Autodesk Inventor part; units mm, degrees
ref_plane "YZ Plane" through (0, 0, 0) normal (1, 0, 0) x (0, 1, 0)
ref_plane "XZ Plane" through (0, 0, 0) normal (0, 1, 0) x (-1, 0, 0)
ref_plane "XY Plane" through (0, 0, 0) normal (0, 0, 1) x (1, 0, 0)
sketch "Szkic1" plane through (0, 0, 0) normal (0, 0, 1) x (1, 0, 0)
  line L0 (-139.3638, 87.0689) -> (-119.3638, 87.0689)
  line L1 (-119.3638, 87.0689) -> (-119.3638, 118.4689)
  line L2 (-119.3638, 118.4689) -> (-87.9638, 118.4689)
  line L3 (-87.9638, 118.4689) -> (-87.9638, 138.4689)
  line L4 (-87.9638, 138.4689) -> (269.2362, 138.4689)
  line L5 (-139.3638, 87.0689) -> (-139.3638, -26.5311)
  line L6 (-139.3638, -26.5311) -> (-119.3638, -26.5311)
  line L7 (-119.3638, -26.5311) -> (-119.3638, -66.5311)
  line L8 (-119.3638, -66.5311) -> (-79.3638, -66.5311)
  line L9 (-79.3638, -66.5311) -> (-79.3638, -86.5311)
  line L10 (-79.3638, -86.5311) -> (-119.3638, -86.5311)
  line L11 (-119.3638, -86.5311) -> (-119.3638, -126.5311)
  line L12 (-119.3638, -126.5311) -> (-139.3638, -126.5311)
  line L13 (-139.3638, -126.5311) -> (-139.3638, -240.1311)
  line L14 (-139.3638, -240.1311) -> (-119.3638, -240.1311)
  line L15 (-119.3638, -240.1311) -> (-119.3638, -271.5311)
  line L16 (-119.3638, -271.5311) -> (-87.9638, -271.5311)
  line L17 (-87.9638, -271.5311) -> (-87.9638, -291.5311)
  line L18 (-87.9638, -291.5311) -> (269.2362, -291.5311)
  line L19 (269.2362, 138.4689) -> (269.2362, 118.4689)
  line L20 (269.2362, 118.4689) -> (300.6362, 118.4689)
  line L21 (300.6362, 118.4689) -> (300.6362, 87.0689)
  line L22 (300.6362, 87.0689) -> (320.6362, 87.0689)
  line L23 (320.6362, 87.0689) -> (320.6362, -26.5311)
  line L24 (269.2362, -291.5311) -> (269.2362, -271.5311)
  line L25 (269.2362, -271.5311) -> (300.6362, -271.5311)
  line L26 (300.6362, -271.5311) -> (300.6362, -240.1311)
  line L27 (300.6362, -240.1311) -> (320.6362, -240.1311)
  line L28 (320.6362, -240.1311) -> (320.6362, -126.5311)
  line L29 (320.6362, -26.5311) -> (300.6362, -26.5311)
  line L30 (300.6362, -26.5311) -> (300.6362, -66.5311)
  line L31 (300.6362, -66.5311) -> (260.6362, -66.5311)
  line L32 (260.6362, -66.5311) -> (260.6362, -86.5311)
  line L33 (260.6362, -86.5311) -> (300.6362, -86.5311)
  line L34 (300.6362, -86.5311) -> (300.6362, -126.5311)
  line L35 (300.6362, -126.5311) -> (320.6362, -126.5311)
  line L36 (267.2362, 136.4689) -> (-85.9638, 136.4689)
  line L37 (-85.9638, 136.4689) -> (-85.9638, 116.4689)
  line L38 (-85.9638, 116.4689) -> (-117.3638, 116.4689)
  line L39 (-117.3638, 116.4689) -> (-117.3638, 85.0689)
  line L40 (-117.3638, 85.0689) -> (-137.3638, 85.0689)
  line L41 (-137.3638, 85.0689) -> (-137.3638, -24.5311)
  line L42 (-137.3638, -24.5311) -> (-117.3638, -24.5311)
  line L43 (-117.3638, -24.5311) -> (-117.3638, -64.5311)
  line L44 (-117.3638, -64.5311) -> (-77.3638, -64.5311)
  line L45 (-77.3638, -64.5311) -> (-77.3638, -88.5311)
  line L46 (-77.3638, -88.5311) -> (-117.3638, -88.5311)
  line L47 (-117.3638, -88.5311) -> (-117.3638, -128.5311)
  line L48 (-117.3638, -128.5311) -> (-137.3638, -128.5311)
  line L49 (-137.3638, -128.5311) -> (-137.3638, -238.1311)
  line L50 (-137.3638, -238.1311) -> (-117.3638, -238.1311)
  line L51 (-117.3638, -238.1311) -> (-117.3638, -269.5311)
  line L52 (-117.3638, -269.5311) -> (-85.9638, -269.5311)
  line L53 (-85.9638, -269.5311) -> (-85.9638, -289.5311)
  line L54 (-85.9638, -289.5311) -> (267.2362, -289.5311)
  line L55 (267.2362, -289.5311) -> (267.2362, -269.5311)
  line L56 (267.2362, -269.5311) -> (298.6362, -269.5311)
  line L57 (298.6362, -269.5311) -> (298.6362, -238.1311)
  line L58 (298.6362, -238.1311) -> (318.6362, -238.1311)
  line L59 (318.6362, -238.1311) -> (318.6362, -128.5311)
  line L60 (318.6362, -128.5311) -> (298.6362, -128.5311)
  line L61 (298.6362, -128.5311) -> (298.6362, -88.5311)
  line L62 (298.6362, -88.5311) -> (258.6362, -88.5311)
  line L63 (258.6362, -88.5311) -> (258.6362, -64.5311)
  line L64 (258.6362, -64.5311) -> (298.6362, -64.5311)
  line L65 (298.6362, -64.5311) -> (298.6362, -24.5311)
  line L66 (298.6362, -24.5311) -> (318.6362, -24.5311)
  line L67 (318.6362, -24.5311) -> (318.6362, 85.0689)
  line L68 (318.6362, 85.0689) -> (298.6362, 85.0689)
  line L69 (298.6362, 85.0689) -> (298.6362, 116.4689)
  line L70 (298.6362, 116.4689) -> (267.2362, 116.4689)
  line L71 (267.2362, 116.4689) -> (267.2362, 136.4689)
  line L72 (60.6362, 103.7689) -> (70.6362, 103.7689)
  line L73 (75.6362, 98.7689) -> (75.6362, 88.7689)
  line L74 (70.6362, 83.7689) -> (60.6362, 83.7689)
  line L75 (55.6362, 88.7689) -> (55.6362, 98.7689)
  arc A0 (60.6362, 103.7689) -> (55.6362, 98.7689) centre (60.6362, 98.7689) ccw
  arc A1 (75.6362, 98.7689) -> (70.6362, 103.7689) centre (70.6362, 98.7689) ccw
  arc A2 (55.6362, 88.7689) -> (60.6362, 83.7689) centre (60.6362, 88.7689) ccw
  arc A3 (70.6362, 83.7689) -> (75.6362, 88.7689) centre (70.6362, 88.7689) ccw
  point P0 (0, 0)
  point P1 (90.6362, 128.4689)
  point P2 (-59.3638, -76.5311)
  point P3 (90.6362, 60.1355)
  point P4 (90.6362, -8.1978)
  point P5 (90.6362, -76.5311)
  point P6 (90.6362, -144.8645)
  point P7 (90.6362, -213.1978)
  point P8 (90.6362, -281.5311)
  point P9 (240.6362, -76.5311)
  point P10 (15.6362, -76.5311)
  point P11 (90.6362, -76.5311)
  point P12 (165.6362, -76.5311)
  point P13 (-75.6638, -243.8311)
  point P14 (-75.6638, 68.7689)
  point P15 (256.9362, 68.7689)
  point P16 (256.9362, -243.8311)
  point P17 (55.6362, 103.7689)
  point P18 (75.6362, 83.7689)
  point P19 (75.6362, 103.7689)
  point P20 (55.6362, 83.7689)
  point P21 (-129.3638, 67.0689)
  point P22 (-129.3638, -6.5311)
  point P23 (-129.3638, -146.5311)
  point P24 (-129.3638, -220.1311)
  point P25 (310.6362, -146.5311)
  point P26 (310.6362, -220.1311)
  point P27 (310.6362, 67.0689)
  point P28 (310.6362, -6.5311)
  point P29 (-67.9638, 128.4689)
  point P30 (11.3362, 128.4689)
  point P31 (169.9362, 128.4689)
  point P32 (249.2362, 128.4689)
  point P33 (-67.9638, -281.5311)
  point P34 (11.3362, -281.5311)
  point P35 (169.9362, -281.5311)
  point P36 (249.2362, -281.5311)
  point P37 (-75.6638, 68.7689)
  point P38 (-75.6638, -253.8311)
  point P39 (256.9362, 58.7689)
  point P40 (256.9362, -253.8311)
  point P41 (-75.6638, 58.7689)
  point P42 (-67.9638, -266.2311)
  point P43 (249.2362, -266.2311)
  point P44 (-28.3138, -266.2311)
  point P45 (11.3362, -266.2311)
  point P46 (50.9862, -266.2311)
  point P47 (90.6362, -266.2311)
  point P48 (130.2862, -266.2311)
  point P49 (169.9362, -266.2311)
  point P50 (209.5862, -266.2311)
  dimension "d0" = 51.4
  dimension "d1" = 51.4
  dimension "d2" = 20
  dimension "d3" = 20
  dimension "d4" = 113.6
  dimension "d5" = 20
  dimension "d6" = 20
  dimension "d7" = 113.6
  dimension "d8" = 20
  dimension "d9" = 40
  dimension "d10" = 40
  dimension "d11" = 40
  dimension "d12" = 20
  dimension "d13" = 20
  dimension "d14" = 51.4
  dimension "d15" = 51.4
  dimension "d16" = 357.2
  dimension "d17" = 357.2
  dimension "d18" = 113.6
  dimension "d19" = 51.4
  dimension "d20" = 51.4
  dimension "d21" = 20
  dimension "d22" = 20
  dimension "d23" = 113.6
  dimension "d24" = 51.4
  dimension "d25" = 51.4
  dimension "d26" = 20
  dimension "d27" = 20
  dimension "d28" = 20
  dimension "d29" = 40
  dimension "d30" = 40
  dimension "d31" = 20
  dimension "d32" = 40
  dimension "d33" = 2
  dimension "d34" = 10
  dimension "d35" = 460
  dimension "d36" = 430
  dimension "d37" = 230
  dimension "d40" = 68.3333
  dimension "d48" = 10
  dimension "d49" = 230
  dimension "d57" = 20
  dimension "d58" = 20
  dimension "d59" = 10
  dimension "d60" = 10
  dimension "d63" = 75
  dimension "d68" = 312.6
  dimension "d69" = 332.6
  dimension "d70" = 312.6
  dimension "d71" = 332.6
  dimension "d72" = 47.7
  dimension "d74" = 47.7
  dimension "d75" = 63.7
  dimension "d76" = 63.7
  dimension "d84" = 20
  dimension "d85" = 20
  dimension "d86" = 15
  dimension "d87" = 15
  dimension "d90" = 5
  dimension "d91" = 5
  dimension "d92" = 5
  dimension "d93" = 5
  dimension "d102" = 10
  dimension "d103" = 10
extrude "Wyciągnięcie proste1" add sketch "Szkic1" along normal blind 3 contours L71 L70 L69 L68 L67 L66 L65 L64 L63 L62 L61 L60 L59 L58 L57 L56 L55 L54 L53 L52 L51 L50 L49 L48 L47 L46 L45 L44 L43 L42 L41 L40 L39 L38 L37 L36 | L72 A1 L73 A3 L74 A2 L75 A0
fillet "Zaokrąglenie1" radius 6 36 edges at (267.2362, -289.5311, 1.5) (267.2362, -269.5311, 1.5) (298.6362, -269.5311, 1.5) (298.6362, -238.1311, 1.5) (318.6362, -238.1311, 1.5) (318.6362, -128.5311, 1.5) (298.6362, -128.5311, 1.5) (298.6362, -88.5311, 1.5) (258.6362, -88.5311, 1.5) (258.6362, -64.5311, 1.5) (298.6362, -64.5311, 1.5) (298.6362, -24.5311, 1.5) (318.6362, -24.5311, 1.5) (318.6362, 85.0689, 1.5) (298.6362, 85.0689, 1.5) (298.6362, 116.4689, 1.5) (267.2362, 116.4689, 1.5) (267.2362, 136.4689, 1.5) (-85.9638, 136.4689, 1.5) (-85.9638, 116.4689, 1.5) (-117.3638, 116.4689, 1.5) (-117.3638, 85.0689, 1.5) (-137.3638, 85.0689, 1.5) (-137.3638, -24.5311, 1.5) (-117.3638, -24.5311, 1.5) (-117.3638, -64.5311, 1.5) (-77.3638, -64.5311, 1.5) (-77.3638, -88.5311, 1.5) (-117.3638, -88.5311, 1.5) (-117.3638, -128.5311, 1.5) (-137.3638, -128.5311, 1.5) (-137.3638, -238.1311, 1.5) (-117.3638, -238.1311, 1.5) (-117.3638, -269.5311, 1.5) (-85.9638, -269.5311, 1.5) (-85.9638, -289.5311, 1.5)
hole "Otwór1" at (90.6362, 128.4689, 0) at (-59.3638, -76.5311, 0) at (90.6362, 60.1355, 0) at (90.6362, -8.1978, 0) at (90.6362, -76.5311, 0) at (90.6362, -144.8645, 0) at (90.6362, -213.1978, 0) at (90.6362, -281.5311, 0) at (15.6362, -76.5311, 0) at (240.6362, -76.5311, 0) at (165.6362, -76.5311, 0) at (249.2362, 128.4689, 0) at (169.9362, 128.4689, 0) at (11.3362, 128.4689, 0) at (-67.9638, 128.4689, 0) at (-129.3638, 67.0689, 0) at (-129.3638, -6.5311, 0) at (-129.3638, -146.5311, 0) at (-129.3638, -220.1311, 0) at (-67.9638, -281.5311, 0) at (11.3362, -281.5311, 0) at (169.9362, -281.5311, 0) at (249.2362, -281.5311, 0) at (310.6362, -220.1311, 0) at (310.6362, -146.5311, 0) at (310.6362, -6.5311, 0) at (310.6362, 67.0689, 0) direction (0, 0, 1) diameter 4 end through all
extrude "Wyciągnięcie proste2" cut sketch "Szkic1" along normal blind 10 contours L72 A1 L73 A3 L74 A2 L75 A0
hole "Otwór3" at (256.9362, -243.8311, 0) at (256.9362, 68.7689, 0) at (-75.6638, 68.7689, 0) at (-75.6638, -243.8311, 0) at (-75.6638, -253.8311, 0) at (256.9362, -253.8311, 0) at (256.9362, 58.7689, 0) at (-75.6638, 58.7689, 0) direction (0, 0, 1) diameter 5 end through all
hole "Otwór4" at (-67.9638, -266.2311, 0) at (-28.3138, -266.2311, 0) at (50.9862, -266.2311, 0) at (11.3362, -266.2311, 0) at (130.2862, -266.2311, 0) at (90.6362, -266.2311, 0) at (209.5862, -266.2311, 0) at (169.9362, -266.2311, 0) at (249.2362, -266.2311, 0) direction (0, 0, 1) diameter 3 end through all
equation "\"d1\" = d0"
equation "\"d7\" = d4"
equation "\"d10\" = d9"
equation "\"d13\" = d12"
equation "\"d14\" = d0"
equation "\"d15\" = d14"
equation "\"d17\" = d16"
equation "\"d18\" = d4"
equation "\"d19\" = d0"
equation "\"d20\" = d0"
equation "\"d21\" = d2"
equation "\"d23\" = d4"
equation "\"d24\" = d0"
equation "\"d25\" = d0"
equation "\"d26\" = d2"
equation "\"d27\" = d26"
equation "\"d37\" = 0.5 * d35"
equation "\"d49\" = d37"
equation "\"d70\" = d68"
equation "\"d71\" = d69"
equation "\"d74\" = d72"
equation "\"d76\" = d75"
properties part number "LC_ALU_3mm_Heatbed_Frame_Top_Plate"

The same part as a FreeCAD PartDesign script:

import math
import FreeCAD as App
import Part
import Sketcher
from FreeCAD import Vector
Q = App.Units.Quantity


def edges_at(feature, points):
    """Names of the edges that pass closest to the given points."""
    edges = feature.Shape.Edges
    near = lambda p: min(range(len(edges)), key=lambda i: edges[i].distToShape(Part.Vertex(*p))[0])
    return sorted({f"Edge{near(p) + 1}" for p in points})


def add_polygon(sketch, points):
    """Adds a closed chain of lines whose ends are joined by coincident constraints."""
    first, n = sketch.GeometryCount, len(points)
    for a, b in zip(points, points[1:] + points[:1]):
        sketch.addGeometry(Part.LineSegment(App.Vector(*a, 0), App.Vector(*b, 0)), False)
    for i in range(n):
        sketch.addConstraint(Sketcher.Constraint("Coincident", first + i, 2, first + (i + 1) % n, 1))

doc = App.newDocument("Part")
body = doc.addObject("PartDesign::Body", "Body")

sketch1 = body.newObject("Sketcher::SketchObject", "Sketch")
sketch1.AttachmentSupport = (doc.getObject("XY_Plane"), [""])
sketch1.MapMode = "FlatFace"
add_polygon(sketch1, [(267, 116), (267, 136), (-86, 136), (-86, 116), (-117, 116), (-117, 85), (-137, 85), (-137, -25), (-117, -25), (-117, -65), (-77, -65), (-77, -89), (-117, -89), (-117, -129), (-137, -129), (-137, -238), (-117, -238), (-117, -270), (-86, -270), (-86, -290), (267, -290), (267, -270), (299, -270), (299, -238), (319, -238), (319, -129), (299, -129), (299, -89), (259, -89), (259, -65), (299, -65), (299, -25), (319, -25), (319, 85), (299, 85), (299, 116)])
sketch1.addConstraint([
    Sketcher.Constraint("Vertical", 0),
    Sketcher.Constraint("Horizontal", 1),
    Sketcher.Constraint("Vertical", 2),
    Sketcher.Constraint("Horizontal", 3),
    Sketcher.Constraint("Vertical", 4),
    Sketcher.Constraint("Horizontal", 5),
    Sketcher.Constraint("Vertical", 6),
    Sketcher.Constraint("Horizontal", 7),
    Sketcher.Constraint("Vertical", 8),
    Sketcher.Constraint("Horizontal", 9),
    Sketcher.Constraint("Vertical", 10),
    Sketcher.Constraint("Horizontal", 11),
    Sketcher.Constraint("Vertical", 12),
    Sketcher.Constraint("Horizontal", 13),
    Sketcher.Constraint("Vertical", 14),
    Sketcher.Constraint("Horizontal", 15),
    Sketcher.Constraint("Vertical", 16),
    Sketcher.Constraint("Horizontal", 17),
    Sketcher.Constraint("Vertical", 18),
    Sketcher.Constraint("Horizontal", 19),
    Sketcher.Constraint("Vertical", 20),
    Sketcher.Constraint("Horizontal", 21),
    Sketcher.Constraint("Vertical", 22),
    Sketcher.Constraint("Horizontal", 23),
    Sketcher.Constraint("Vertical", 24),
    Sketcher.Constraint("Horizontal", 25),
    Sketcher.Constraint("Vertical", 26),
    Sketcher.Constraint("Horizontal", 27),
    Sketcher.Constraint("Vertical", 28),
    Sketcher.Constraint("Horizontal", 29),
    Sketcher.Constraint("Vertical", 30),
    Sketcher.Constraint("Horizontal", 31),
    Sketcher.Constraint("Vertical", 32),
    Sketcher.Constraint("Horizontal", 33),
    Sketcher.Constraint("Vertical", 34),
    Sketcher.Constraint("Horizontal", 35),
    Sketcher.Constraint("Horizontal", 17, 2, 20, 2),
    Sketcher.Constraint("Horizontal", 15, 2, 22, 2),
    Sketcher.Constraint("Horizontal", 13, 2, 24, 2),
    Sketcher.Constraint("Horizontal", 11, 2, 26, 2),
    Sketcher.Constraint("Horizontal", 9, 2, 28, 2),
    Sketcher.Constraint("Horizontal", 7, 2, 30, 2),
    Sketcher.Constraint("Horizontal", 5, 2, 32, 2),
    Sketcher.Constraint("Horizontal", 3, 2, 34, 2),
    Sketcher.Constraint("Vertical", 4, 2, 7, 2),
    Sketcher.Constraint("Vertical", 8, 2, 11, 2),
    Sketcher.Constraint("Vertical", 6, 2, 13, 2),
    Sketcher.Constraint("Vertical", 12, 2, 15, 2),
    Sketcher.Constraint("Vertical", 2, 2, 17, 2),
    Sketcher.Constraint("Vertical", 0, 2, 19, 2),
    Sketcher.Constraint("Vertical", 22, 2, 25, 2),
    Sketcher.Constraint("Vertical", 26, 2, 29, 2),
    Sketcher.Constraint("Vertical", 24, 2, 31, 2),
    Sketcher.Constraint("Vertical", 30, 2, 33, 2),
    Sketcher.Constraint("Equal", 17, 21),
    Sketcher.Constraint("Equal", 15, 23),
    Sketcher.Constraint("Equal", 11, 27),
    Sketcher.Constraint("Equal", 33, 0),
    Sketcher.Constraint("Equal", 35, 4),
    Sketcher.Constraint("Equal", 29, 8),
    Sketcher.Constraint("Equal", 8, 12),
    Sketcher.Constraint("Equal", 6, 14),
    Sketcher.Constraint("Equal", 4, 16),
    Sketcher.Constraint("Equal", 2, 18),
    Sketcher.Constraint("DistanceX", 5, 2, 5, 1, Q("20 mm")),
    Sketcher.Constraint("DistanceX", 9, 1, 9, 2, Q("40 mm")),
    Sketcher.Constraint("DistanceY", 4, 2, 1, 2, Q("51.4 mm")),
    Sketcher.Constraint("DistanceY", 10, 2, 10, 1, Q("24 mm")),
    Sketcher.Constraint("DistanceX", 1, 2, 1, 1, Q("353.2 mm")),
    Sketcher.Constraint("DistanceY", 6, 2, 6, 1, Q("109.6 mm")),
    Sketcher.Constraint("DistanceY", -1, 1, 0, 2, Q("136.469 mm")),
    Sketcher.Constraint("DistanceX", -1, 1, 0, 2, Q("267.2362 mm")),
])
pad1 = body.newObject("PartDesign::Pad", "Pad")
pad1.Profile = sketch1
pad1.Length = 3
doc.recompute()

fillet = body.newObject("PartDesign::Fillet", "Fillet")
fillet.Base = (pad1, edges_at(pad1, [
    (267.236, -289.531, 1.5),
    (267.236, -269.531, 1.5),
    (298.636, -269.531, 1.5),
    (298.636, -238.131, 1.5),
    (318.636, -238.131, 1.5),
    (318.636, -128.531, 1.5),
    (298.636, -128.531, 1.5),
    (298.636, -88.531, 1.5),
    (258.636, -88.531, 1.5),
    (258.636, -64.531, 1.5),
    (298.636, -64.531, 1.5),
    (298.636, -24.531, 1.5),
    (318.636, -24.531, 1.5),
    (318.636, 85.069, 1.5),
    (298.636, 85.069, 1.5),
    (298.636, 116.469, 1.5),
    (267.236, 116.469, 1.5),
    (267.236, 136.469, 1.5),
    (-85.964, 136.469, 1.5),
    (-85.964, 116.469, 1.5),
    (-117.364, 116.469, 1.5),
    (-117.364, 85.069, 1.5),
    (-137.364, 85.069, 1.5),
    (-137.364, -24.531, 1.5),
    (-117.364, -24.531, 1.5),
    (-117.364, -64.531, 1.5),
    (-77.364, -64.531, 1.5),
    (-77.364, -88.531, 1.5),
    (-117.364, -88.531, 1.5),
    (-117.364, -128.531, 1.5),
    (-137.364, -128.531, 1.5),
    (-137.364, -238.131, 1.5),
    (-117.364, -238.131, 1.5),
    (-117.364, -269.531, 1.5),
    (-85.964, -269.531, 1.5),
    (-85.964, -289.531, 1.5),
]))
fillet.Radius = 6

sketch2 = body.newObject("Sketcher::SketchObject", "Sketch001")
sketch2.AttachmentSupport = (doc.getObject("XY_Plane"), [""])
sketch2.MapMode = "FlatFace"
sketch2.addGeometry([
    Part.Circle(Vector(90.6, 128.5, 0), Vector(0, 0, 1), 2),
    Part.Circle(Vector(-59.4, -76.5, 0), Vector(0, 0, 1), 2),
    Part.Circle(Vector(90.6, 60.1, 0), Vector(0, 0, 1), 2),
    Part.Circle(Vector(90.6, -8.2, 0), Vector(0, 0, 1), 2),
    Part.Circle(Vector(90.6, -76.5, 0), Vector(0, 0, 1), 2),
    Part.Circle(Vector(90.6, -144.9, 0), Vector(0, 0, 1), 2),
    Part.Circle(Vector(90.6, -213.2, 0), Vector(0, 0, 1), 2),
    Part.Circle(Vector(90.6, -281.5, 0), Vector(0, 0, 1), 2),
    Part.Circle(Vector(15.6, -76.5, 0), Vector(0, 0, 1), 2),
    Part.Circle(Vector(240.6, -76.5, 0), Vector(0, 0, 1), 2),
    Part.Circle(Vector(165.6, -76.5, 0), Vector(0, 0, 1), 2),
    Part.Circle(Vector(249.2, 128.5, 0), Vector(0, 0, 1), 2),
    Part.Circle(Vector(169.9, 128.5, 0), Vector(0, 0, 1), 2),
    Part.Circle(Vector(11.3, 128.5, 0), Vector(0, 0, 1), 2),
    Part.Circle(Vector(-68, 128.5, 0), Vector(0, 0, 1), 2),
    Part.Circle(Vector(-129.4, 67.1, 0), Vector(0, 0, 1), 2),
    Part.Circle(Vector(-129.4, -6.5, 0), Vector(0, 0, 1), 2),
    Part.Circle(Vector(-129.4, -146.5, 0), Vector(0, 0, 1), 2),
    Part.Circle(Vector(-129.4, -220.1, 0), Vector(0, 0, 1), 2),
    Part.Circle(Vector(-68, -281.5, 0), Vector(0, 0, 1), 2),
    Part.Circle(Vector(11.3, -281.5, 0), Vector(0, 0, 1), 2),
    Part.Circle(Vector(169.9, -281.5, 0), Vector(0, 0, 1), 2),
    Part.Circle(Vector(249.2, -281.5, 0), Vector(0, 0, 1), 2),
    Part.Circle(Vector(310.6, -220.1, 0), Vector(0, 0, 1), 2),
    Part.Circle(Vector(310.6, -146.5, 0), Vector(0, 0, 1), 2),
    Part.Circle(Vector(310.6, -6.5, 0), Vector(0, 0, 1), 2),
    Part.Circle(Vector(310.6, 67.1, 0), Vector(0, 0, 1), 2),
], False)
sketch2.addConstraint([
    Sketcher.Constraint("Equal", 0, 1),
    Sketcher.Constraint("Equal", 1, 2),
    Sketcher.Constraint("Equal", 2, 3),
    Sketcher.Constraint("Equal", 3, 4),
    Sketcher.Constraint("Equal", 4, 5),
    Sketcher.Constraint("Equal", 5, 6),
    Sketcher.Constraint("Equal", 6, 7),
    Sketcher.Constraint("Equal", 7, 8),
    Sketcher.Constraint("Equal", 8, 9),
    Sketcher.Constraint("Equal", 9, 10),
    Sketcher.Constraint("Equal", 10, 11),
    Sketcher.Constraint("Equal", 11, 12),
    Sketcher.Constraint("Equal", 12, 13),
    Sketcher.Constraint("Equal", 13, 14),
    Sketcher.Constraint("Equal", 14, 15),
    Sketcher.Constraint("Equal", 15, 16),
    Sketcher.Constraint("Equal", 16, 17),
    Sketcher.Constraint("Equal", 17, 18),
    Sketcher.Constraint("Equal", 18, 19),
    Sketcher.Constraint("Equal", 19, 20),
    Sketcher.Constraint("Equal", 20, 21),
    Sketcher.Constraint("Equal", 21, 22),
    Sketcher.Constraint("Equal", 22, 23),
    Sketcher.Constraint("Equal", 23, 24),
    Sketcher.Constraint("Equal", 24, 25),
    Sketcher.Constraint("Equal", 25, 26),
    Sketcher.Constraint("Horizontal", 1, 3, 4, 3),
    Sketcher.Constraint("Horizontal", 4, 3, 8, 3),
    Sketcher.Constraint("Horizontal", 8, 3, 9, 3),
    Sketcher.Constraint("Horizontal", 9, 3, 10, 3),
    Sketcher.Constraint("Horizontal", 0, 3, 11, 3),
    Sketcher.Constraint("Horizontal", 11, 3, 12, 3),
    Sketcher.Constraint("Horizontal", 12, 3, 13, 3),
    Sketcher.Constraint("Horizontal", 13, 3, 14, 3),
    Sketcher.Constraint("Horizontal", 7, 3, 19, 3),
    Sketcher.Constraint("Horizontal", 19, 3, 20, 3),
    Sketcher.Constraint("Horizontal", 20, 3, 21, 3),
    Sketcher.Constraint("Horizontal", 21, 3, 22, 3),
    Sketcher.Constraint("Horizontal", 18, 3, 23, 3),
    Sketcher.Constraint("Horizontal", 17, 3, 24, 3),
    Sketcher.Constraint("Horizontal", 16, 3, 25, 3),
    Sketcher.Constraint("Horizontal", 15, 3, 26, 3),
    Sketcher.Constraint("Vertical", 0, 3, 2, 3),
    Sketcher.Constraint("Vertical", 2, 3, 3, 3),
    Sketcher.Constraint("Vertical", 3, 3, 4, 3),
    Sketcher.Constraint("Vertical", 4, 3, 5, 3),
    Sketcher.Constraint("Vertical", 5, 3, 6, 3),
    Sketcher.Constraint("Vertical", 6, 3, 7, 3),
    Sketcher.Constraint("Vertical", 15, 3, 16, 3),
    Sketcher.Constraint("Vertical", 16, 3, 17, 3),
    Sketcher.Constraint("Vertical", 17, 3, 18, 3),
    Sketcher.Constraint("Vertical", 14, 3, 19, 3),
    Sketcher.Constraint("Vertical", 13, 3, 20, 3),
    Sketcher.Constraint("Vertical", 12, 3, 21, 3),
    Sketcher.Constraint("Vertical", 11, 3, 22, 3),
    Sketcher.Constraint("Vertical", 23, 3, 24, 3),
    Sketcher.Constraint("Vertical", 24, 3, 25, 3),
    Sketcher.Constraint("Vertical", 25, 3, 26, 3),
    Sketcher.Constraint("Diameter", 0, Q("4 mm")),
    Sketcher.Constraint("DistanceX", 1, 3, 0, 3, Q("150 mm")),
    Sketcher.Constraint("DistanceY", 1, 3, 0, 3, Q("205 mm")),
    Sketcher.Constraint("DistanceY", 5, 3, 2, 3, Q("205 mm")),
    Sketcher.Constraint("DistanceY", 6, 3, 3, 3, Q("205 mm")),
    Sketcher.Constraint("DistanceY", 7, 3, 4, 3, Q("205 mm")),
    Sketcher.Constraint("DistanceX", 1, 3, 8, 3, Q("75 mm")),
    Sketcher.Constraint("DistanceX", 4, 3, 9, 3, Q("150 mm")),
    Sketcher.Constraint("DistanceX", 4, 3, 10, 3, Q("75 mm")),
    Sketcher.Constraint("DistanceX", 15, 3, 1, 3, Q("70 mm")),
    Sketcher.Constraint("DistanceY", 1, 3, 16, 3, Q("70 mm")),
    Sketcher.Constraint("DistanceY", 17, 3, 1, 3, Q("70 mm")),
    Sketcher.Constraint("DistanceX", 9, 3, 23, 3, Q("70 mm")),
    Sketcher.Constraint("DistanceX", 0, 3, 11, 3, Q("158.6 mm")),
    Sketcher.Constraint("DistanceX", 12, 3, 11, 3, Q("79.3 mm")),
    Sketcher.Constraint("DistanceX", 13, 3, 0, 3, Q("79.3 mm")),
    Sketcher.Constraint("DistanceX", 14, 3, 13, 3, Q("79.3 mm")),
    Sketcher.Constraint("DistanceY", 15, 3, 14, 3, Q("61.4 mm")),
    Sketcher.Constraint("DistanceY", 18, 3, 17, 3, Q("73.6 mm")),
    Sketcher.Constraint("DistanceY", -1, 1, 0, 3, Q("128.469 mm")),
    Sketcher.Constraint("DistanceX", -1, 1, 0, 3, Q("90.6362 mm")),
    Sketcher.Constraint("DistanceY", -1, 1, 2, 3, Q("60.1355 mm")),
    Sketcher.Constraint("DistanceY", 3, 3, -1, 1, Q("8.1978 mm")),
])
doc.recompute()
hole = body.newObject("PartDesign::Hole", "Hole")
hole.Profile = sketch2
hole.ThreadType = "None"
hole.Diameter = 4
hole.DepthType = "ThroughAll"
hole.Reversed = True

sketch3 = body.newObject("Sketcher::SketchObject", "Sketch002")
sketch3.AttachmentSupport = (doc.getObject("XY_Plane"), [""])
sketch3.MapMode = "FlatFace"
sketch3.addGeometry([
    Part.LineSegment(Vector(71, 104, 0), Vector(61, 104, 0)),
    Part.ArcOfCircle(Part.Circle(Vector(61, 99, 0), Vector(0, 0, 1), 5), math.radians(90), math.radians(180)),
    Part.LineSegment(Vector(56, 99, 0), Vector(56, 89, 0)),
    Part.ArcOfCircle(Part.Circle(Vector(61, 89, 0), Vector(0, 0, 1), 5), math.radians(180), math.radians(270)),
    Part.LineSegment(Vector(61, 84, 0), Vector(71, 84, 0)),
    Part.ArcOfCircle(Part.Circle(Vector(71, 89, 0), Vector(0, 0, 1), 5), math.radians(-90), math.radians(0)),
    Part.LineSegment(Vector(76, 89, 0), Vector(76, 99, 0)),
    Part.ArcOfCircle(Part.Circle(Vector(71, 99, 0), Vector(0, 0, 1), 5), math.radians(0), math.radians(90)),
], False)
sketch3.addConstraint([
    Sketcher.Constraint("Tangent", 0, 2, 1, 1),
    Sketcher.Constraint("Tangent", 1, 2, 2, 1),
    Sketcher.Constraint("Tangent", 2, 2, 3, 1),
    Sketcher.Constraint("Tangent", 3, 2, 4, 1),
    Sketcher.Constraint("Tangent", 4, 2, 5, 1),
    Sketcher.Constraint("Tangent", 5, 2, 6, 1),
    Sketcher.Constraint("Tangent", 6, 2, 7, 1),
    Sketcher.Constraint("Tangent", 7, 2, 0, 1),
    Sketcher.Constraint("Horizontal", 0),
    Sketcher.Constraint("Vertical", 2),
    Sketcher.Constraint("Horizontal", 4),
    Sketcher.Constraint("Vertical", 6),
    Sketcher.Constraint("Equal", 1, 3),
    Sketcher.Constraint("Equal", 3, 5),
    Sketcher.Constraint("Equal", 5, 7),
    Sketcher.Constraint("Equal", 4, 2),
    Sketcher.Constraint("Radius", 1, Q("5 mm")),
    Sketcher.Constraint("DistanceX", 0, 2, 0, 1, Q("10 mm")),
    Sketcher.Constraint("DistanceY", -1, 1, 1, 3, Q("98.769 mm")),
    Sketcher.Constraint("DistanceX", -1, 1, 1, 3, Q("60.6362 mm")),
])
pocket1 = body.newObject("PartDesign::Pocket", "Pocket")
pocket1.Profile = sketch3
pocket1.Length = 10
pocket1.Reversed = True

sketch4 = body.newObject("Sketcher::SketchObject", "Sketch003")
sketch4.AttachmentSupport = (doc.getObject("XY_Plane"), [""])
sketch4.MapMode = "FlatFace"
sketch4.addGeometry([
    Part.Circle(Vector(256.9, -243.8, 0), Vector(0, 0, 1), 2.5),
    Part.Circle(Vector(256.9, 68.8, 0), Vector(0, 0, 1), 2.5),
    Part.Circle(Vector(-75.7, 68.8, 0), Vector(0, 0, 1), 2.5),
    Part.Circle(Vector(-75.7, -243.8, 0), Vector(0, 0, 1), 2.5),
    Part.Circle(Vector(-75.7, -253.8, 0), Vector(0, 0, 1), 2.5),
    Part.Circle(Vector(256.9, -253.8, 0), Vector(0, 0, 1), 2.5),
    Part.Circle(Vector(256.9, 58.8, 0), Vector(0, 0, 1), 2.5),
    Part.Circle(Vector(-75.7, 58.8, 0), Vector(0, 0, 1), 2.5),
], False)
sketch4.addConstraint([
    Sketcher.Constraint("Equal", 0, 1),
    Sketcher.Constraint("Equal", 1, 2),
    Sketcher.Constraint("Equal", 2, 3),
    Sketcher.Constraint("Equal", 3, 4),
    Sketcher.Constraint("Equal", 4, 5),
    Sketcher.Constraint("Equal", 5, 6),
    Sketcher.Constraint("Equal", 6, 7),
    Sketcher.Constraint("Horizontal", 1, 3, 2, 3),
    Sketcher.Constraint("Horizontal", 0, 3, 3, 3),
    Sketcher.Constraint("Horizontal", 4, 3, 5, 3),
    Sketcher.Constraint("Horizontal", 6, 3, 7, 3),
    Sketcher.Constraint("Vertical", 0, 3, 1, 3),
    Sketcher.Constraint("Vertical", 2, 3, 3, 3),
    Sketcher.Constraint("Vertical", 3, 3, 4, 3),
    Sketcher.Constraint("Vertical", 1, 3, 5, 3),
    Sketcher.Constraint("Vertical", 5, 3, 6, 3),
    Sketcher.Constraint("Vertical", 4, 3, 7, 3),
    Sketcher.Constraint("Diameter", 0, Q("5 mm")),
    Sketcher.Constraint("DistanceY", 4, 3, 3, 3, Q("10 mm")),
    Sketcher.Constraint("DistanceY", 6, 3, 1, 3, Q("10 mm")),
    Sketcher.Constraint("DistanceY", 0, 3, 1, 3, Q("312.6 mm")),
    Sketcher.Constraint("DistanceX", 2, 3, 1, 3, Q("332.6 mm")),
    Sketcher.Constraint("DistanceY", 0, 3, -1, 1, Q("243.831 mm")),
    Sketcher.Constraint("DistanceX", -1, 1, 0, 3, Q("256.9362 mm")),
])
doc.recompute()
hole2 = body.newObject("PartDesign::Hole", "Hole001")
hole2.Profile = sketch4
hole2.ThreadType = "None"
hole2.Diameter = 5
hole2.DepthType = "ThroughAll"
hole2.Reversed = True

sketch5 = body.newObject("Sketcher::SketchObject", "Sketch004")
sketch5.AttachmentSupport = (doc.getObject("XY_Plane"), [""])
sketch5.MapMode = "FlatFace"
sketch5.addGeometry([
    Part.Circle(Vector(-68, -266.2, 0), Vector(0, 0, 1), 1.5),
    Part.Circle(Vector(-28.3, -266.2, 0), Vector(0, 0, 1), 1.5),
    Part.Circle(Vector(51, -266.2, 0), Vector(0, 0, 1), 1.5),
    Part.Circle(Vector(11.3, -266.2, 0), Vector(0, 0, 1), 1.5),
    Part.Circle(Vector(130.3, -266.2, 0), Vector(0, 0, 1), 1.5),
    Part.Circle(Vector(90.6, -266.2, 0), Vector(0, 0, 1), 1.5),
    Part.Circle(Vector(209.6, -266.2, 0), Vector(0, 0, 1), 1.5),
    Part.Circle(Vector(169.9, -266.2, 0), Vector(0, 0, 1), 1.5),
    Part.Circle(Vector(249.2, -266.2, 0), Vector(0, 0, 1), 1.5),
], False)
sketch5.addConstraint([
    Sketcher.Constraint("Equal", 0, 1),
    Sketcher.Constraint("Equal", 1, 2),
    Sketcher.Constraint("Equal", 2, 3),
    Sketcher.Constraint("Equal", 3, 4),
    Sketcher.Constraint("Equal", 4, 5),
    Sketcher.Constraint("Equal", 5, 6),
    Sketcher.Constraint("Equal", 6, 7),
    Sketcher.Constraint("Equal", 7, 8),
    Sketcher.Constraint("Horizontal", 0, 3, 1, 3),
    Sketcher.Constraint("Horizontal", 1, 3, 2, 3),
    Sketcher.Constraint("Horizontal", 2, 3, 3, 3),
    Sketcher.Constraint("Horizontal", 3, 3, 4, 3),
    Sketcher.Constraint("Horizontal", 4, 3, 5, 3),
    Sketcher.Constraint("Horizontal", 5, 3, 6, 3),
    Sketcher.Constraint("Horizontal", 6, 3, 7, 3),
    Sketcher.Constraint("Horizontal", 7, 3, 8, 3),
    Sketcher.Constraint("Diameter", 0, Q("3 mm")),
    Sketcher.Constraint("DistanceX", 1, 3, 2, 3, Q("79.3 mm")),
    Sketcher.Constraint("DistanceX", 0, 3, 3, 3, Q("79.3 mm")),
    Sketcher.Constraint("DistanceX", 2, 3, 4, 3, Q("79.3 mm")),
    Sketcher.Constraint("DistanceX", 3, 3, 5, 3, Q("79.3 mm")),
    Sketcher.Constraint("DistanceX", 4, 3, 6, 3, Q("79.3 mm")),
    Sketcher.Constraint("DistanceX", 5, 3, 7, 3, Q("79.3 mm")),
    Sketcher.Constraint("DistanceX", 7, 3, 8, 3, Q("79.3 mm")),
    Sketcher.Constraint("DistanceX", 0, 3, 1, 3, Q("39.65 mm")),
    Sketcher.Constraint("DistanceY", 0, 3, -1, 1, Q("266.231 mm")),
    Sketcher.Constraint("DistanceX", 0, 3, -1, 1, Q("67.9638 mm")),
])
doc.recompute()
hole3 = body.newObject("PartDesign::Hole", "Hole002")
hole3.Profile = sketch5
hole3.ThreadType = "None"
hole3.Diameter = 3
hole3.DepthType = "ThroughAll"
hole3.Reversed = True

doc.recompute()
